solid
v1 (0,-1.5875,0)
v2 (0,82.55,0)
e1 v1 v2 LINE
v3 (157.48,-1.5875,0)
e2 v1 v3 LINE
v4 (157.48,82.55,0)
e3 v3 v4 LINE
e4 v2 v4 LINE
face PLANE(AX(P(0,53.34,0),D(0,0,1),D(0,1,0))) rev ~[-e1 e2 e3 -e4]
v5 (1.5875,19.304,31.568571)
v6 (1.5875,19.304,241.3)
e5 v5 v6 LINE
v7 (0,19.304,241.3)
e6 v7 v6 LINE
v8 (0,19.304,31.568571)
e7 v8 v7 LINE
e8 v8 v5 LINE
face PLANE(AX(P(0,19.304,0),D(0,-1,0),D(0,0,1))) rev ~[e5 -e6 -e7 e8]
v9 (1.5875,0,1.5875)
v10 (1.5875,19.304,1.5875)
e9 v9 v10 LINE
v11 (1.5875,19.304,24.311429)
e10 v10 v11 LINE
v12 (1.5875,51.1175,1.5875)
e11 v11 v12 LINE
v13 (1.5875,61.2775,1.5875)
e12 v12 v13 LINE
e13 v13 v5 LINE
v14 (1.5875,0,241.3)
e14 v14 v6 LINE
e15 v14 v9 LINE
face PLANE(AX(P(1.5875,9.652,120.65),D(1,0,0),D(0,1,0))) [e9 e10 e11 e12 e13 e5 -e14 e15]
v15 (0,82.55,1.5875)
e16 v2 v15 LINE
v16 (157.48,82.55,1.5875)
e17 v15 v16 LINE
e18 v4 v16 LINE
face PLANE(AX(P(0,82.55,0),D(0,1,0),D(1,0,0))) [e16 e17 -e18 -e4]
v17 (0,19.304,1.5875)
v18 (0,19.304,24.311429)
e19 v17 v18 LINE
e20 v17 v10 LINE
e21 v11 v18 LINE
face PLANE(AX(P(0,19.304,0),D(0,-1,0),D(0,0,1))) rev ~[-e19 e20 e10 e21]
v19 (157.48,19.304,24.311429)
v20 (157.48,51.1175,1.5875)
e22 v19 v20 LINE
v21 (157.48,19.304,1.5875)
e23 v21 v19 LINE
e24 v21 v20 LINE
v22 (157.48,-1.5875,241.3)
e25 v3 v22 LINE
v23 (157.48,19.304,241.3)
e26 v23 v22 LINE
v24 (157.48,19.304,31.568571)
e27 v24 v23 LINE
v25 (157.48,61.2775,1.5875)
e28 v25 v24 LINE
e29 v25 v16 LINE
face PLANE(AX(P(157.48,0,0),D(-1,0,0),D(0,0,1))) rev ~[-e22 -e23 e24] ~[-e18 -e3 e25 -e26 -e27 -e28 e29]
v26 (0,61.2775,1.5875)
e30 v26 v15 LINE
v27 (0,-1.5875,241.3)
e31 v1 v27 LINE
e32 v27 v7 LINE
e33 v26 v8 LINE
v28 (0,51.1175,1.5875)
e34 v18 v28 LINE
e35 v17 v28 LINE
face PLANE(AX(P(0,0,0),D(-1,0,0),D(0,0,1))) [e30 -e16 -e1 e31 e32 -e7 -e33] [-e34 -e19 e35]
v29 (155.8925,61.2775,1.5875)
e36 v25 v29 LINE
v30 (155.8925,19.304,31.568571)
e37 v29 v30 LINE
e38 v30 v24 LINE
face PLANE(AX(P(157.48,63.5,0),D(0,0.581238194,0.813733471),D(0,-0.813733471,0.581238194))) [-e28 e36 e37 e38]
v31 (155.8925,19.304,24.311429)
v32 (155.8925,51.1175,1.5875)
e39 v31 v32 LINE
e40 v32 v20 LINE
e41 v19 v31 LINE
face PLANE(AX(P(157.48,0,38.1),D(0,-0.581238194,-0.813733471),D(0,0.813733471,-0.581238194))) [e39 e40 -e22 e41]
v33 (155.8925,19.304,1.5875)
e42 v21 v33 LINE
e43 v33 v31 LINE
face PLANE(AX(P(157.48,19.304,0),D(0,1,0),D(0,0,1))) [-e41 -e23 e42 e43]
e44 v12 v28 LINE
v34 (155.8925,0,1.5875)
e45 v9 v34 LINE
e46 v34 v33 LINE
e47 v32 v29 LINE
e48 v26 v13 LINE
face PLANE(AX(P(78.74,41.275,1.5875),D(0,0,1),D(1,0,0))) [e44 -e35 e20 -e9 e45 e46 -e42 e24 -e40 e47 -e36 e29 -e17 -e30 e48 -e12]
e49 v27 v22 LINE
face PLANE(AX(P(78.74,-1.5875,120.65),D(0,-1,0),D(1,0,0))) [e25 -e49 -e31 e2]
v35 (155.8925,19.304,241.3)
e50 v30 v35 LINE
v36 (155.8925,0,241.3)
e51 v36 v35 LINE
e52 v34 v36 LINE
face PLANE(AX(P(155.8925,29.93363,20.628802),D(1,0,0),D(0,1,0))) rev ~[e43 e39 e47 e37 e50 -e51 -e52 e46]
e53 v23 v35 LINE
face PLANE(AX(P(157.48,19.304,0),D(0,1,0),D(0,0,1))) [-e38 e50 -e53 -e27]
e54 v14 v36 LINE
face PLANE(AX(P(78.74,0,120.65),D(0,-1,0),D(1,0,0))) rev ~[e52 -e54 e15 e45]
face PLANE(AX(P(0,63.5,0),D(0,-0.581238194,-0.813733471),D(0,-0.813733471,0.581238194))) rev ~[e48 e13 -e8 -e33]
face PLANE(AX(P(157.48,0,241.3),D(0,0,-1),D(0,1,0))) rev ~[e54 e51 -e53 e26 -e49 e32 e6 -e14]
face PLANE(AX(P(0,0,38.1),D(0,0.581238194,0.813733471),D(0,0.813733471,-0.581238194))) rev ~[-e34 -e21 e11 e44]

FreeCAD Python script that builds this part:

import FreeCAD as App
import Part
import Sketcher
Q = App.Units.Quantity

doc = App.newDocument("Part")
params = doc.addObject("Spreadsheet::Sheet", "Params")
for row, (alias, value) in enumerate([
    ("sketch1_width", "6.2 in"),
    ("sketch1_height", "3.25 in"),
    ("pad1_length", "0.0625 in"),
    ("sketch2_width", "6.2 in"),
    ("sketch2_height", "9.5 in"),
    ("pad2_length", "0.0625 in"),
    ("sketch3_height", "9.5 in"),
    ("sketch3_width", "0.76 in"),
    ("pad3_length", "0.0625 in"),
    ("sketch4_height", "9.5 in"),
    ("sketch4_width", "0.76 in"),
    ("pad4_length", "0.0625 in"),
    ("sketch5_width", "0.4 in"),
    ("pad5_length", "0.0625 in"),
    ("sketch6_width", "0.4 in"),
    ("pad6_length", "0.0625 in"),
    ("pad7_length", "0.0625 in"),
], start=1):
    params.set(f"A{row}", alias)
    params.set(f"B{row}", "=" + value)
    params.setAlias(f"B{row}", alias)

body = doc.addObject("PartDesign::Body", "Body")

sketch1 = body.newObject("Sketcher::SketchObject", "Sketch")
sketch1.AttachmentSupport = (doc.getObject("XY_Plane"), [""])
sketch1.MapMode = "FlatFace"
sketch1.addGeometry(Part.LineSegment(App.Vector(0, 83, 0), App.Vector(0, 0, 0)), False)
sketch1.addGeometry(Part.LineSegment(App.Vector(0, 0, 0), App.Vector(157, 0, 0)), False)
sketch1.addGeometry(Part.LineSegment(App.Vector(157, 0, 0), App.Vector(157, 83, 0)), False)
sketch1.addGeometry(Part.LineSegment(App.Vector(157, 83, 0), App.Vector(0, 83, 0)), False)
sketch1.addConstraint(Sketcher.Constraint("Coincident", 0, 2, 1, 1))
sketch1.addConstraint(Sketcher.Constraint("Coincident", 1, 2, 2, 1))
sketch1.addConstraint(Sketcher.Constraint("Coincident", 2, 2, 3, 1))
sketch1.addConstraint(Sketcher.Constraint("Coincident", 3, 2, 0, 1))
sketch1.addConstraint(Sketcher.Constraint("Vertical", 0))
sketch1.addConstraint(Sketcher.Constraint("Horizontal", 1))
sketch1.addConstraint(Sketcher.Constraint("Vertical", 2))
sketch1.addConstraint(Sketcher.Constraint("Horizontal", 3))
sketch1.addConstraint(Sketcher.Constraint("Coincident", 0, 2, -1, 1))
sketch1.addConstraint(Sketcher.Constraint("DistanceX", 1, 1, 1, 2, Q("6.2 in")))
sketch1.addConstraint(Sketcher.Constraint("DistanceY", 0, 2, 0, 1, Q("3.25 in")))
sketch1.setExpression("Constraints[9]", "Params.sketch1_width")
sketch1.setExpression("Constraints[10]", "Params.sketch1_height")
pad1 = body.newObject("PartDesign::Pad", "Pad")
pad1.Profile = sketch1
pad1.setExpression("Length", "Params.pad1_length")

sketch2 = body.newObject("Sketcher::SketchObject", "Sketch001")
sketch2.AttachmentSupport = (doc.getObject("XZ_Plane"), [""])
sketch2.MapMode = "FlatFace"
sketch2.addGeometry(Part.LineSegment(App.Vector(0, 241, 0), App.Vector(0, 0, 0)), False)
sketch2.addGeometry(Part.LineSegment(App.Vector(0, 0, 0), App.Vector(157, 0, 0)), False)
sketch2.addGeometry(Part.LineSegment(App.Vector(157, 0, 0), App.Vector(157, 241, 0)), False)
sketch2.addGeometry(Part.LineSegment(App.Vector(157, 241, 0), App.Vector(0, 241, 0)), False)
sketch2.addConstraint(Sketcher.Constraint("Coincident", 0, 2, 1, 1))
sketch2.addConstraint(Sketcher.Constraint("Coincident", 1, 2, 2, 1))
sketch2.addConstraint(Sketcher.Constraint("Coincident", 2, 2, 3, 1))
sketch2.addConstraint(Sketcher.Constraint("Coincident", 3, 2, 0, 1))
sketch2.addConstraint(Sketcher.Constraint("Vertical", 0))
sketch2.addConstraint(Sketcher.Constraint("Horizontal", 1))
sketch2.addConstraint(Sketcher.Constraint("Vertical", 2))
sketch2.addConstraint(Sketcher.Constraint("Horizontal", 3))
sketch2.addConstraint(Sketcher.Constraint("Coincident", 0, 2, -1, 1))
sketch2.addConstraint(Sketcher.Constraint("DistanceX", 1, 1, 1, 2, Q("6.2 in")))
sketch2.addConstraint(Sketcher.Constraint("DistanceY", 0, 2, 0, 1, Q("9.5 in")))
sketch2.setExpression("Constraints[9]", "Params.sketch2_width")
sketch2.setExpression("Constraints[10]", "Params.sketch2_height")
pad2 = body.newObject("PartDesign::Pad", "Pad001")
pad2.Profile = sketch2
pad2.setExpression("Length", "Params.pad2_length")

sketch3 = body.newObject("Sketcher::SketchObject", "Sketch002")
sketch3.AttachmentSupport = (doc.getObject("YZ_Plane"), [""])
sketch3.MapMode = "FlatFace"
sketch3.addGeometry(Part.LineSegment(App.Vector(0, 241, 0), App.Vector(0, 0, 0)), False)
sketch3.addGeometry(Part.LineSegment(App.Vector(0, 0, 0), App.Vector(19, 0, 0)), False)
sketch3.addGeometry(Part.LineSegment(App.Vector(19, 0, 0), App.Vector(19, 241, 0)), False)
sketch3.addGeometry(Part.LineSegment(App.Vector(19, 241, 0), App.Vector(0, 241, 0)), False)
sketch3.addConstraint(Sketcher.Constraint("Coincident", 0, 2, 1, 1))
sketch3.addConstraint(Sketcher.Constraint("Coincident", 1, 2, 2, 1))
sketch3.addConstraint(Sketcher.Constraint("Coincident", 2, 2, 3, 1))
sketch3.addConstraint(Sketcher.Constraint("Coincident", 3, 2, 0, 1))
sketch3.addConstraint(Sketcher.Constraint("Vertical", 0))
sketch3.addConstraint(Sketcher.Constraint("Horizontal", 1))
sketch3.addConstraint(Sketcher.Constraint("Vertical", 2))
sketch3.addConstraint(Sketcher.Constraint("Horizontal", 3))
sketch3.addConstraint(Sketcher.Constraint("Coincident", 0, 2, -1, 1))
sketch3.addConstraint(Sketcher.Constraint("DistanceY", 0, 2, 0, 1, Q("9.5 in")))
sketch3.addConstraint(Sketcher.Constraint("DistanceX", 1, 1, 1, 2, Q("0.76 in")))
sketch3.setExpression("Constraints[9]", "Params.sketch3_height")
sketch3.setExpression("Constraints[10]", "Params.sketch3_width")
pad3 = body.newObject("PartDesign::Pad", "Pad002")
pad3.Profile = sketch3
pad3.setExpression("Length", "Params.pad3_length")

sketch4 = body.newObject("Sketcher::SketchObject", "Sketch003")
sketch4.AttachmentSupport = (doc.getObject("YZ_Plane"), [""])
sketch4.MapMode = "FlatFace"
sketch4.AttachmentOffset = App.Placement(App.Vector(0, 0, 6.2 * 25.4), App.Rotation())
sketch4.addGeometry(Part.LineSegment(App.Vector(0, 241, 0), App.Vector(0, 0, 0)), False)
sketch4.addGeometry(Part.LineSegment(App.Vector(0, 0, 0), App.Vector(19, 0, 0)), False)
sketch4.addGeometry(Part.LineSegment(App.Vector(19, 0, 0), App.Vector(19, 241, 0)), False)
sketch4.addGeometry(Part.LineSegment(App.Vector(19, 241, 0), App.Vector(0, 241, 0)), False)
sketch4.addConstraint(Sketcher.Constraint("Coincident", 0, 2, 1, 1))
sketch4.addConstraint(Sketcher.Constraint("Coincident", 1, 2, 2, 1))
sketch4.addConstraint(Sketcher.Constraint("Coincident", 2, 2, 3, 1))
sketch4.addConstraint(Sketcher.Constraint("Coincident", 3, 2, 0, 1))
sketch4.addConstraint(Sketcher.Constraint("Vertical", 0))
sketch4.addConstraint(Sketcher.Constraint("Horizontal", 1))
sketch4.addConstraint(Sketcher.Constraint("Vertical", 2))
sketch4.addConstraint(Sketcher.Constraint("Horizontal", 3))
sketch4.addConstraint(Sketcher.Constraint("Coincident", 0, 2, -1, 1))
sketch4.addConstraint(Sketcher.Constraint("DistanceY", 0, 2, 0, 1, Q("9.5 in")))
sketch4.addConstraint(Sketcher.Constraint("DistanceX", 1, 1, 1, 2, Q("0.76 in")))
sketch4.setExpression("Constraints[9]", "Params.sketch4_height")
sketch4.setExpression("Constraints[10]", "Params.sketch4_width")
pad4 = body.newObject("PartDesign::Pad", "Pad003")
pad4.Profile = sketch4
pad4.setExpression("Length", "Params.pad4_length")
pad4.Reversed = True

sketch5 = body.newObject("Sketcher::SketchObject", "Sketch004")
sketch5.AttachmentSupport = (doc.getObject("YZ_Plane"), [""])
sketch5.MapMode = "FlatFace"
sketch5.AttachmentOffset = App.Placement(App.Vector(0, 0, 6.2 * 25.4), App.Rotation())
sketch5.addGeometry(Part.LineSegment(App.Vector(64, 0, 0), App.Vector(0, 45, 0)), False)
sketch5.addGeometry(Part.LineSegment(App.Vector(0, 45, 0), App.Vector(0, 38, 0)), False)
sketch5.addGeometry(Part.LineSegment(App.Vector(0, 38, 0), App.Vector(53, 0, 0)), False)
sketch5.addGeometry(Part.LineSegment(App.Vector(53, 0, 0), App.Vector(64, 0, 0)), False)
sketch5.addConstraint(Sketcher.Constraint("Coincident", 0, 2, 1, 1))
sketch5.addConstraint(Sketcher.Constraint("Coincident", 1, 2, 2, 1))
sketch5.addConstraint(Sketcher.Constraint("Coincident", 2, 2, 3, 1))
sketch5.addConstraint(Sketcher.Constraint("Coincident", 3, 2, 0, 1))
sketch5.addConstraint(Sketcher.Constraint("Vertical", 1))
sketch5.addConstraint(Sketcher.Constraint("Horizontal", 3))
sketch5.addConstraint(Sketcher.Constraint("PointOnObject", 0, 2, -2))
sketch5.addConstraint(Sketcher.Constraint("PointOnObject", 2, 2, -1))
sketch5.addConstraint(Sketcher.Constraint("Parallel", 0, 2))
sketch5.addConstraint(Sketcher.Constraint("DistanceX", 3, 1, 3, 2, Q("0.4 in")))
sketch5.addConstraint(Sketcher.Constraint("DistanceY", -1, 1, 1, 2, Q("1.5 in")))
sketch5.addConstraint(Sketcher.Constraint("DistanceX", -1, 1, 2, 2, Q("2.1 in")))
sketch5.setExpression("Constraints[9]", "Params.sketch5_width")
pad5 = body.newObject("PartDesign::Pad", "Pad004")
pad5.Profile = sketch5
pad5.setExpression("Length", "Params.pad5_length")
pad5.Reversed = True

sketch6 = body.newObject("Sketcher::SketchObject", "Sketch005")
sketch6.AttachmentSupport = (doc.getObject("YZ_Plane"), [""])
sketch6.MapMode = "FlatFace"
sketch6.addGeometry(Part.LineSegment(App.Vector(64, 0, 0), App.Vector(0, 45, 0)), False)
sketch6.addGeometry(Part.LineSegment(App.Vector(0, 45, 0), App.Vector(0, 38, 0)), False)
sketch6.addGeometry(Part.LineSegment(App.Vector(0, 38, 0), App.Vector(53, 0, 0)), False)
sketch6.addGeometry(Part.LineSegment(App.Vector(53, 0, 0), App.Vector(64, 0, 0)), False)
sketch6.addConstraint(Sketcher.Constraint("Coincident", 0, 2, 1, 1))
sketch6.addConstraint(Sketcher.Constraint("Coincident", 1, 2, 2, 1))
sketch6.addConstraint(Sketcher.Constraint("Coincident", 2, 2, 3, 1))
sketch6.addConstraint(Sketcher.Constraint("Coincident", 3, 2, 0, 1))
sketch6.addConstraint(Sketcher.Constraint("Vertical", 1))
sketch6.addConstraint(Sketcher.Constraint("Horizontal", 3))
sketch6.addConstraint(Sketcher.Constraint("PointOnObject", 0, 2, -2))
sketch6.addConstraint(Sketcher.Constraint("PointOnObject", 2, 2, -1))
sketch6.addConstraint(Sketcher.Constraint("Parallel", 0, 2))
sketch6.addConstraint(Sketcher.Constraint("DistanceX", 3, 1, 3, 2, Q("0.4 in")))
sketch6.addConstraint(Sketcher.Constraint("DistanceY", -1, 1, 1, 2, Q("1.5 in")))
sketch6.addConstraint(Sketcher.Constraint("DistanceX", -1, 1, 2, 2, Q("2.1 in")))
sketch6.setExpression("Constraints[9]", "Params.sketch6_width")
pad6 = body.newObject("PartDesign::Pad", "Pad005")
pad6.Profile = sketch6
pad6.setExpression("Length", "Params.pad6_length")
body2 = doc.addObject("PartDesign::Body", "Body001")

sketch7 = body2.newObject("Sketcher::SketchObject", "Sketch006")
sketch7.AttachmentSupport = (doc.getObject("YZ_Plane001"), [""])
sketch7.MapMode = "FlatFace"
sketch7.AttachmentOffset = App.Placement(App.Vector(0, 0, 6.2 * 25.4), App.Rotation())
sketch7.addGeometry(Part.LineSegment(App.Vector(0, 241, 0), App.Vector(0, 2, 0)), False)
sketch7.addGeometry(Part.LineSegment(App.Vector(0, 2, 0), App.Vector(25, 2, 0)), False)
sketch7.addGeometry(Part.LineSegment(App.Vector(25, 2, 0), App.Vector(25, 241, 0)), False)
sketch7.addGeometry(Part.LineSegment(App.Vector(25, 241, 0), App.Vector(0, 241, 0)), False)
sketch7.addConstraint(Sketcher.Constraint("Coincident", 0, 2, 1, 1))
sketch7.addConstraint(Sketcher.Constraint("Coincident", 1, 2, 2, 1))
sketch7.addConstraint(Sketcher.Constraint("Coincident", 2, 2, 3, 1))
sketch7.addConstraint(Sketcher.Constraint("Coincident", 3, 2, 0, 1))
sketch7.addConstraint(Sketcher.Constraint("Vertical", 0))
sketch7.addConstraint(Sketcher.Constraint("Horizontal", 1))
sketch7.addConstraint(Sketcher.Constraint("Vertical", 2))
sketch7.addConstraint(Sketcher.Constraint("Horizontal", 3))
sketch7.addConstraint(Sketcher.Constraint("PointOnObject", 0, 2, -2))
sketch7.addConstraint(Sketcher.Constraint("DistanceY", 0, 2, 0, 1, 239.16848))
sketch7.addConstraint(Sketcher.Constraint("DistanceY", -1, 1, 2, 2, 240.952))
sketch7.addConstraint(Sketcher.Constraint("DistanceX", 1, 1, 1, 2, 24.969745))
pad7 = body2.newObject("PartDesign::Pad", "Pad006")
pad7.Profile = sketch7
pad7.setExpression("Length", "Params.pad7_length")
pad7.Reversed = True
body2.Visibility = False

doc.recompute()
